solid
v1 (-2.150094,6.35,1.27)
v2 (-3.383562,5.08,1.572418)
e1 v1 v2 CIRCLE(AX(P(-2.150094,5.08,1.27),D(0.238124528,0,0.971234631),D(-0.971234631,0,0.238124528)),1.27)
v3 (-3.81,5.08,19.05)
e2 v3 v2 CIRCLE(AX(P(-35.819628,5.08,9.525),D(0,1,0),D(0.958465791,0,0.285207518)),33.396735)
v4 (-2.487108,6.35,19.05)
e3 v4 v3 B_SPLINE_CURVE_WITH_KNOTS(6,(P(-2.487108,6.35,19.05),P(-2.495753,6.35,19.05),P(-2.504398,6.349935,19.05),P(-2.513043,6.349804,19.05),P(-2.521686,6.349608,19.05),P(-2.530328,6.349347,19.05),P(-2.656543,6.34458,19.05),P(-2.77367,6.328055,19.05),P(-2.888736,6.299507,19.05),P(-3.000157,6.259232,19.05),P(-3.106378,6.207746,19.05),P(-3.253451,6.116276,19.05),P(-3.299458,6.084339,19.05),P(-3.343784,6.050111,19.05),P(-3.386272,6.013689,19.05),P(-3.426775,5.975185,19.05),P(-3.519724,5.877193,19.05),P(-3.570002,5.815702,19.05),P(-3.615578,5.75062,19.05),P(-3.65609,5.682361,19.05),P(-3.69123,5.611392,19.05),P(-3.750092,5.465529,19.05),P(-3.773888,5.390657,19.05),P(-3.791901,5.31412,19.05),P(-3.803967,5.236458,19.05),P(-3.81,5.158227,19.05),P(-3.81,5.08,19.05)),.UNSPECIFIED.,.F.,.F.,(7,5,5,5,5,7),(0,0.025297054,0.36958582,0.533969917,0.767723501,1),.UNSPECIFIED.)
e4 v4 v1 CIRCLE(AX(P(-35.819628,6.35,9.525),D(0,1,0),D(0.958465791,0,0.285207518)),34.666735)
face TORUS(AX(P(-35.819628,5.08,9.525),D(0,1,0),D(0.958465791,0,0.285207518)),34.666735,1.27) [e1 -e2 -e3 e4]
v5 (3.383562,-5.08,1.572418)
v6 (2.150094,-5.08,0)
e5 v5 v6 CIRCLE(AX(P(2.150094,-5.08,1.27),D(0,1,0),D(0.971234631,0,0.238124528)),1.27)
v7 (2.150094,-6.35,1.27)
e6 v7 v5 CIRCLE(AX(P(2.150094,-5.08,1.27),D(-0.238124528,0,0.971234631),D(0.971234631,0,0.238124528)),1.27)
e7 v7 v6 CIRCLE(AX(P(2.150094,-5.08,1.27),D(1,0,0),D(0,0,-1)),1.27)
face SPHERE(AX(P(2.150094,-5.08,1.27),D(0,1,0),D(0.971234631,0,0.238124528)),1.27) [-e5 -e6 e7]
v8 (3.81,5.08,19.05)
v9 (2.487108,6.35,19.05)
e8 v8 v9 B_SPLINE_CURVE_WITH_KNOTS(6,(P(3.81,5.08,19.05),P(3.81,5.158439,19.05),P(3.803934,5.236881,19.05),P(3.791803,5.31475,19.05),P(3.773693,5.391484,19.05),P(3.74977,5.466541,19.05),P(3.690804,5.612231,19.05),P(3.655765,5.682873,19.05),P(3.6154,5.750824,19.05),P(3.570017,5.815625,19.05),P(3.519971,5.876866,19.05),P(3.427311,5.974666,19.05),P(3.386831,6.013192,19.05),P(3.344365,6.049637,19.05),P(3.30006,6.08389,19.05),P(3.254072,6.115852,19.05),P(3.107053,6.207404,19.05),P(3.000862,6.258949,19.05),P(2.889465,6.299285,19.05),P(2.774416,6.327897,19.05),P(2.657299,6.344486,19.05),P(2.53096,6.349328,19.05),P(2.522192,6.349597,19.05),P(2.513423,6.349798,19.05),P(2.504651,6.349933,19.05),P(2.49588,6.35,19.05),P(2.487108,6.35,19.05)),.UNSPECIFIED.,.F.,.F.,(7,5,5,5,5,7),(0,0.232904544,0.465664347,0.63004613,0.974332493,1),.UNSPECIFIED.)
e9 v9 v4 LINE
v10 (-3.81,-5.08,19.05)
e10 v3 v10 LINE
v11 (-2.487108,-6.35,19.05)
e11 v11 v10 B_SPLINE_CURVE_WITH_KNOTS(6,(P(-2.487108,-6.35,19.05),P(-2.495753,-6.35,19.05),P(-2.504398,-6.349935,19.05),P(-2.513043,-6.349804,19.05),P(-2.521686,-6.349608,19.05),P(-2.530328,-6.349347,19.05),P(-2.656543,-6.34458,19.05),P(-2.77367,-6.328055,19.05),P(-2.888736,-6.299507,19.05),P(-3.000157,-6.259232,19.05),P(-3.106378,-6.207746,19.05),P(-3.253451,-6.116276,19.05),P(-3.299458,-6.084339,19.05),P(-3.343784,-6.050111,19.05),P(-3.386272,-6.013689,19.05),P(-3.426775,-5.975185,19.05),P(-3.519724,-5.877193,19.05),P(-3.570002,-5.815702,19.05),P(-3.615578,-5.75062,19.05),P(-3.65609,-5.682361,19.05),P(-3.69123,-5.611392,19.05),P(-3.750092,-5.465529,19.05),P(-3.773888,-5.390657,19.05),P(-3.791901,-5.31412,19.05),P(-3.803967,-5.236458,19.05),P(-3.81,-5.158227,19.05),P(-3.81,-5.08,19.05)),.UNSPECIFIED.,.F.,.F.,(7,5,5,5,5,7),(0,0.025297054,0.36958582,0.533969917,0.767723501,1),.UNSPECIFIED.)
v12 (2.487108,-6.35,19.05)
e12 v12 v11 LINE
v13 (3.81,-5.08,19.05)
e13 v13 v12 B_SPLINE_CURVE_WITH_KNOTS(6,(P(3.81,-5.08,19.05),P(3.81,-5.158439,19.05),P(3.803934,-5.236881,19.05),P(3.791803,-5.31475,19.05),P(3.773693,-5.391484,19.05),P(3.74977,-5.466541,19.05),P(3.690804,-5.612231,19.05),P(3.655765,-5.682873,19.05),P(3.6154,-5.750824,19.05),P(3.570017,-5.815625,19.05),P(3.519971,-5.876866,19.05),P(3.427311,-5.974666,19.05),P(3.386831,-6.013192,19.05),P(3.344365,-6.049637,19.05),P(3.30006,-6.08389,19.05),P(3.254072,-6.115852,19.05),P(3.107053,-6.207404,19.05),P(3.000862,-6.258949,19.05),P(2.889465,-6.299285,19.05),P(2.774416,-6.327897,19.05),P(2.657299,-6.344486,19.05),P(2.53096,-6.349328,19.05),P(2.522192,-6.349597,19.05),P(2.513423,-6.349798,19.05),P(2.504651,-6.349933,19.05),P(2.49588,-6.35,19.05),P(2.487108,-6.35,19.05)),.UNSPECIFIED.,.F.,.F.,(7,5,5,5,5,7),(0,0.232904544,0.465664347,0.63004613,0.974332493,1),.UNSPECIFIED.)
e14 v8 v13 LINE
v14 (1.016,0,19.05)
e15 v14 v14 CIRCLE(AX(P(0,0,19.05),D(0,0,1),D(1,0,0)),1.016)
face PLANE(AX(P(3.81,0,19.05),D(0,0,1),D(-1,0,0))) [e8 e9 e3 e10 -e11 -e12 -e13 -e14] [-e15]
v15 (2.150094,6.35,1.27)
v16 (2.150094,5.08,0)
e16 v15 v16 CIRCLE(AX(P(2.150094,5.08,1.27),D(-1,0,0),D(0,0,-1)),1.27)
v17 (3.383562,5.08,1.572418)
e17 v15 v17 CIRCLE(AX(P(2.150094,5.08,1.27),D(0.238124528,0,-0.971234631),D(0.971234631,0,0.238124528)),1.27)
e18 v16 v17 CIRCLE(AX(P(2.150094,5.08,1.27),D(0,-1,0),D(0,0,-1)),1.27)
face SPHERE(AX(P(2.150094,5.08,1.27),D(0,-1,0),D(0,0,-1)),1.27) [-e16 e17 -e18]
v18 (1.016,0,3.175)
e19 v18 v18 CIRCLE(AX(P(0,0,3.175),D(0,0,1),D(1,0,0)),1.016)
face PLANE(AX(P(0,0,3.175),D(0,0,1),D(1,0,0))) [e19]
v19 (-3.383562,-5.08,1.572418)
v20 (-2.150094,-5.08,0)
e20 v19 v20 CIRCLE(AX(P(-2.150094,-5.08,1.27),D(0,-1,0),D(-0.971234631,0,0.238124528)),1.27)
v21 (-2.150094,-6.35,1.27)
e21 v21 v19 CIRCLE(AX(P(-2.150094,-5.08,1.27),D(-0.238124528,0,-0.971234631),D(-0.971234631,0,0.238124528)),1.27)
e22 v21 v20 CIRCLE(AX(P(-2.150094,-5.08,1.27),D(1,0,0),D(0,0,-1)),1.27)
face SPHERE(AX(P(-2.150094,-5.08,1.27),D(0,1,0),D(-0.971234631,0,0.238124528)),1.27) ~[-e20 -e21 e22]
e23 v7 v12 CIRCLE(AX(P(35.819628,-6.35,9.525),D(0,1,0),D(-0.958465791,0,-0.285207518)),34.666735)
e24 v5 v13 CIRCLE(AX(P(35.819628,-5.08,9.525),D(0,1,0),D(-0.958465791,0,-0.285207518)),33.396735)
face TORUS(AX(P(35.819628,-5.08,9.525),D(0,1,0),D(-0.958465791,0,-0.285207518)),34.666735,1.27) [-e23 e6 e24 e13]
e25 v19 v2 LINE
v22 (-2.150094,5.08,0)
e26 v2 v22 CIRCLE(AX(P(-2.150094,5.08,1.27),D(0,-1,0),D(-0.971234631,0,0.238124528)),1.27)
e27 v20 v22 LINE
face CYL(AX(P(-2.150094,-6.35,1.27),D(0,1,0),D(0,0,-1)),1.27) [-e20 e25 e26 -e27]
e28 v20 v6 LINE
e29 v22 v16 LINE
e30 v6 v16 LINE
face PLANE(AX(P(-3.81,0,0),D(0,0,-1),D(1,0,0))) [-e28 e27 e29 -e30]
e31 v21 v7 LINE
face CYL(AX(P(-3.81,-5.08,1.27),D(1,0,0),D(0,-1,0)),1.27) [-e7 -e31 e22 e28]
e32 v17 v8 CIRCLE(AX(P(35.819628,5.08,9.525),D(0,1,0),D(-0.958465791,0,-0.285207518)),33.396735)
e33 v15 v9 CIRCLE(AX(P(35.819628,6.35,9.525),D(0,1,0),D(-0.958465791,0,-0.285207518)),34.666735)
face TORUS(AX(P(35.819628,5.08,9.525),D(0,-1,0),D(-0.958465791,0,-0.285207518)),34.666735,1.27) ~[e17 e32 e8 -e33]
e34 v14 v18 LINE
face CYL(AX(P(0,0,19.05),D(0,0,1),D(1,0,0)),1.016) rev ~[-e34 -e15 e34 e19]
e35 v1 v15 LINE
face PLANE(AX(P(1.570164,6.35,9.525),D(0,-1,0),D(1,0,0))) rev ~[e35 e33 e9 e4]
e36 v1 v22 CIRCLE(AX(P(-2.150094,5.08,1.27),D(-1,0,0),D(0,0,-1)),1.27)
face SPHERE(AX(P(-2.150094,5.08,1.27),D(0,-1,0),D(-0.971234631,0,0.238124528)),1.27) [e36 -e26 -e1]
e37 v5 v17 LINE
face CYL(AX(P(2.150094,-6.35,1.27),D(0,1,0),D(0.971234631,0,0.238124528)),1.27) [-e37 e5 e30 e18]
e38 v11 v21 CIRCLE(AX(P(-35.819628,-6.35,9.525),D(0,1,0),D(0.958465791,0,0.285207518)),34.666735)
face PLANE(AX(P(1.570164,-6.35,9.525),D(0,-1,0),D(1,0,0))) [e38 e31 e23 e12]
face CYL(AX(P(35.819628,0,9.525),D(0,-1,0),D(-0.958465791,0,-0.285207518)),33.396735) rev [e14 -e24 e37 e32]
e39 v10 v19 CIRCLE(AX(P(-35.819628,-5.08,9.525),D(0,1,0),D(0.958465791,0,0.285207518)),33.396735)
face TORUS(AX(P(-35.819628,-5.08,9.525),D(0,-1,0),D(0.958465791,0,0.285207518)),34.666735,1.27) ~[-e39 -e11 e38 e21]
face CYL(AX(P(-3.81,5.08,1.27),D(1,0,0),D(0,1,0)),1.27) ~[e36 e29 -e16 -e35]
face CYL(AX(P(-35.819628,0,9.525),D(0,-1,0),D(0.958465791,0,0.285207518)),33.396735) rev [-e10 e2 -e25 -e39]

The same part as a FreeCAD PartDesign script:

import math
import FreeCAD as App
import Part
import Sketcher

V = App.Vector
Q = App.Units.Quantity


def edges_at(feature, points):
    """Names of the edges that pass closest to the given points."""
    edges = feature.Shape.Edges
    near = lambda p: min(range(len(edges)), key=lambda i: edges[i].distToShape(Part.Vertex(*p))[0])
    return sorted({f"Edge{near(p) + 1}" for p in points})

doc = App.newDocument("Part")
body = doc.addObject("PartDesign::Body", "Body")

# Sketch on XZ plane
sketch1 = body.newObject("Sketcher::SketchObject", "Sketch")
sketch1.AttachmentSupport = (doc.getObject("XZ_Plane"), [""])
sketch1.MapMode = "FlatFace"
sketch1.addGeometry([
    Part.ArcOfCircle(Part.Circle(V(35.819628, 9.525, 0), V(0, 0, 1), 33.396735), math.radians(163.428747), math.radians(196.571253)),
    Part.LineSegment(V(3.81, 19.05, 0), V(-3.81, 19.05, 0)),
    Part.ArcOfCircle(Part.Circle(V(-35.819628, 9.525, 0), V(0, 0, 1), 33.396735), math.radians(-16.571253), math.radians(16.571253)),
    Part.LineSegment(V(-3.81, 0, 0), V(3.81, 0, 0)),
], False)
sketch1.addConstraint([
    Sketcher.Constraint("Coincident", 0, 1, 1, 1),
    Sketcher.Constraint("Coincident", 1, 2, 2, 2),
    Sketcher.Constraint("Coincident", 2, 1, 3, 1),
    Sketcher.Constraint("Coincident", 3, 2, 0, 2),
    Sketcher.Constraint("Horizontal", 1),
    Sketcher.Constraint("Horizontal", 3),
    Sketcher.Constraint("Equal", 0, 2),
    Sketcher.Constraint("Symmetric", 2, 1, 3, 2, -1, 1),
    Sketcher.Constraint("Horizontal", 0, 3, 2, 3),
    Sketcher.Constraint("Vertical", 1, 2, 2, 1),
    Sketcher.Constraint("DistanceX", 1, 2, 1, 1, Q("0.3 in")),
    Sketcher.Constraint("DistanceY", -1, 1, 0, 1, Q("0.75 in")),
    Sketcher.Constraint("Radius", 0, 33.396735),
])
pad1 = body.newObject("PartDesign::Pad", "Pad")
pad1.Profile = sketch1
pad1.Length = Q("0.5 in")
pad1.Midplane = True

# Sketch on XY plane
sketch2 = body.newObject("Sketcher::SketchObject", "Sketch001")
sketch2.AttachmentSupport = (doc.getObject("XY_Plane"), [""])
sketch2.MapMode = "FlatFace"
sketch2.AttachmentOffset = App.Placement(V(0, 0, 0.75 * 25.4), App.Rotation())
sketch2.addGeometry(Part.Circle(V(0, 0, 0), V(0, 0, 1), 1.016), False)
sketch2.addConstraint([
    Sketcher.Constraint("Coincident", 0, 3, -1, 1),
    Sketcher.Constraint("Diameter", 0, Q("0.08 in")),
])
pocket1 = body.newObject("PartDesign::Pocket", "Pocket")
pocket1.Profile = sketch2
pocket1.Length = Q("0.625 in")
doc.recompute()

fillet = body.newObject("PartDesign::Fillet", "Fillet")
fillet.Base = (pocket1, edges_at(pocket1, [
    (2.423, -6.35, 9.525),
    (-2.423, -6.35, 9.525),
    (0, -6.35, 0),
    (3.81, 0, 0),
    (0, 6.35, 0),
    (-3.81, 0, 0),
    (-2.423, 6.35, 9.525),
    (2.423, 6.35, 9.525),
]))
fillet.Radius = Q("0.05 in")

doc.recompute()
